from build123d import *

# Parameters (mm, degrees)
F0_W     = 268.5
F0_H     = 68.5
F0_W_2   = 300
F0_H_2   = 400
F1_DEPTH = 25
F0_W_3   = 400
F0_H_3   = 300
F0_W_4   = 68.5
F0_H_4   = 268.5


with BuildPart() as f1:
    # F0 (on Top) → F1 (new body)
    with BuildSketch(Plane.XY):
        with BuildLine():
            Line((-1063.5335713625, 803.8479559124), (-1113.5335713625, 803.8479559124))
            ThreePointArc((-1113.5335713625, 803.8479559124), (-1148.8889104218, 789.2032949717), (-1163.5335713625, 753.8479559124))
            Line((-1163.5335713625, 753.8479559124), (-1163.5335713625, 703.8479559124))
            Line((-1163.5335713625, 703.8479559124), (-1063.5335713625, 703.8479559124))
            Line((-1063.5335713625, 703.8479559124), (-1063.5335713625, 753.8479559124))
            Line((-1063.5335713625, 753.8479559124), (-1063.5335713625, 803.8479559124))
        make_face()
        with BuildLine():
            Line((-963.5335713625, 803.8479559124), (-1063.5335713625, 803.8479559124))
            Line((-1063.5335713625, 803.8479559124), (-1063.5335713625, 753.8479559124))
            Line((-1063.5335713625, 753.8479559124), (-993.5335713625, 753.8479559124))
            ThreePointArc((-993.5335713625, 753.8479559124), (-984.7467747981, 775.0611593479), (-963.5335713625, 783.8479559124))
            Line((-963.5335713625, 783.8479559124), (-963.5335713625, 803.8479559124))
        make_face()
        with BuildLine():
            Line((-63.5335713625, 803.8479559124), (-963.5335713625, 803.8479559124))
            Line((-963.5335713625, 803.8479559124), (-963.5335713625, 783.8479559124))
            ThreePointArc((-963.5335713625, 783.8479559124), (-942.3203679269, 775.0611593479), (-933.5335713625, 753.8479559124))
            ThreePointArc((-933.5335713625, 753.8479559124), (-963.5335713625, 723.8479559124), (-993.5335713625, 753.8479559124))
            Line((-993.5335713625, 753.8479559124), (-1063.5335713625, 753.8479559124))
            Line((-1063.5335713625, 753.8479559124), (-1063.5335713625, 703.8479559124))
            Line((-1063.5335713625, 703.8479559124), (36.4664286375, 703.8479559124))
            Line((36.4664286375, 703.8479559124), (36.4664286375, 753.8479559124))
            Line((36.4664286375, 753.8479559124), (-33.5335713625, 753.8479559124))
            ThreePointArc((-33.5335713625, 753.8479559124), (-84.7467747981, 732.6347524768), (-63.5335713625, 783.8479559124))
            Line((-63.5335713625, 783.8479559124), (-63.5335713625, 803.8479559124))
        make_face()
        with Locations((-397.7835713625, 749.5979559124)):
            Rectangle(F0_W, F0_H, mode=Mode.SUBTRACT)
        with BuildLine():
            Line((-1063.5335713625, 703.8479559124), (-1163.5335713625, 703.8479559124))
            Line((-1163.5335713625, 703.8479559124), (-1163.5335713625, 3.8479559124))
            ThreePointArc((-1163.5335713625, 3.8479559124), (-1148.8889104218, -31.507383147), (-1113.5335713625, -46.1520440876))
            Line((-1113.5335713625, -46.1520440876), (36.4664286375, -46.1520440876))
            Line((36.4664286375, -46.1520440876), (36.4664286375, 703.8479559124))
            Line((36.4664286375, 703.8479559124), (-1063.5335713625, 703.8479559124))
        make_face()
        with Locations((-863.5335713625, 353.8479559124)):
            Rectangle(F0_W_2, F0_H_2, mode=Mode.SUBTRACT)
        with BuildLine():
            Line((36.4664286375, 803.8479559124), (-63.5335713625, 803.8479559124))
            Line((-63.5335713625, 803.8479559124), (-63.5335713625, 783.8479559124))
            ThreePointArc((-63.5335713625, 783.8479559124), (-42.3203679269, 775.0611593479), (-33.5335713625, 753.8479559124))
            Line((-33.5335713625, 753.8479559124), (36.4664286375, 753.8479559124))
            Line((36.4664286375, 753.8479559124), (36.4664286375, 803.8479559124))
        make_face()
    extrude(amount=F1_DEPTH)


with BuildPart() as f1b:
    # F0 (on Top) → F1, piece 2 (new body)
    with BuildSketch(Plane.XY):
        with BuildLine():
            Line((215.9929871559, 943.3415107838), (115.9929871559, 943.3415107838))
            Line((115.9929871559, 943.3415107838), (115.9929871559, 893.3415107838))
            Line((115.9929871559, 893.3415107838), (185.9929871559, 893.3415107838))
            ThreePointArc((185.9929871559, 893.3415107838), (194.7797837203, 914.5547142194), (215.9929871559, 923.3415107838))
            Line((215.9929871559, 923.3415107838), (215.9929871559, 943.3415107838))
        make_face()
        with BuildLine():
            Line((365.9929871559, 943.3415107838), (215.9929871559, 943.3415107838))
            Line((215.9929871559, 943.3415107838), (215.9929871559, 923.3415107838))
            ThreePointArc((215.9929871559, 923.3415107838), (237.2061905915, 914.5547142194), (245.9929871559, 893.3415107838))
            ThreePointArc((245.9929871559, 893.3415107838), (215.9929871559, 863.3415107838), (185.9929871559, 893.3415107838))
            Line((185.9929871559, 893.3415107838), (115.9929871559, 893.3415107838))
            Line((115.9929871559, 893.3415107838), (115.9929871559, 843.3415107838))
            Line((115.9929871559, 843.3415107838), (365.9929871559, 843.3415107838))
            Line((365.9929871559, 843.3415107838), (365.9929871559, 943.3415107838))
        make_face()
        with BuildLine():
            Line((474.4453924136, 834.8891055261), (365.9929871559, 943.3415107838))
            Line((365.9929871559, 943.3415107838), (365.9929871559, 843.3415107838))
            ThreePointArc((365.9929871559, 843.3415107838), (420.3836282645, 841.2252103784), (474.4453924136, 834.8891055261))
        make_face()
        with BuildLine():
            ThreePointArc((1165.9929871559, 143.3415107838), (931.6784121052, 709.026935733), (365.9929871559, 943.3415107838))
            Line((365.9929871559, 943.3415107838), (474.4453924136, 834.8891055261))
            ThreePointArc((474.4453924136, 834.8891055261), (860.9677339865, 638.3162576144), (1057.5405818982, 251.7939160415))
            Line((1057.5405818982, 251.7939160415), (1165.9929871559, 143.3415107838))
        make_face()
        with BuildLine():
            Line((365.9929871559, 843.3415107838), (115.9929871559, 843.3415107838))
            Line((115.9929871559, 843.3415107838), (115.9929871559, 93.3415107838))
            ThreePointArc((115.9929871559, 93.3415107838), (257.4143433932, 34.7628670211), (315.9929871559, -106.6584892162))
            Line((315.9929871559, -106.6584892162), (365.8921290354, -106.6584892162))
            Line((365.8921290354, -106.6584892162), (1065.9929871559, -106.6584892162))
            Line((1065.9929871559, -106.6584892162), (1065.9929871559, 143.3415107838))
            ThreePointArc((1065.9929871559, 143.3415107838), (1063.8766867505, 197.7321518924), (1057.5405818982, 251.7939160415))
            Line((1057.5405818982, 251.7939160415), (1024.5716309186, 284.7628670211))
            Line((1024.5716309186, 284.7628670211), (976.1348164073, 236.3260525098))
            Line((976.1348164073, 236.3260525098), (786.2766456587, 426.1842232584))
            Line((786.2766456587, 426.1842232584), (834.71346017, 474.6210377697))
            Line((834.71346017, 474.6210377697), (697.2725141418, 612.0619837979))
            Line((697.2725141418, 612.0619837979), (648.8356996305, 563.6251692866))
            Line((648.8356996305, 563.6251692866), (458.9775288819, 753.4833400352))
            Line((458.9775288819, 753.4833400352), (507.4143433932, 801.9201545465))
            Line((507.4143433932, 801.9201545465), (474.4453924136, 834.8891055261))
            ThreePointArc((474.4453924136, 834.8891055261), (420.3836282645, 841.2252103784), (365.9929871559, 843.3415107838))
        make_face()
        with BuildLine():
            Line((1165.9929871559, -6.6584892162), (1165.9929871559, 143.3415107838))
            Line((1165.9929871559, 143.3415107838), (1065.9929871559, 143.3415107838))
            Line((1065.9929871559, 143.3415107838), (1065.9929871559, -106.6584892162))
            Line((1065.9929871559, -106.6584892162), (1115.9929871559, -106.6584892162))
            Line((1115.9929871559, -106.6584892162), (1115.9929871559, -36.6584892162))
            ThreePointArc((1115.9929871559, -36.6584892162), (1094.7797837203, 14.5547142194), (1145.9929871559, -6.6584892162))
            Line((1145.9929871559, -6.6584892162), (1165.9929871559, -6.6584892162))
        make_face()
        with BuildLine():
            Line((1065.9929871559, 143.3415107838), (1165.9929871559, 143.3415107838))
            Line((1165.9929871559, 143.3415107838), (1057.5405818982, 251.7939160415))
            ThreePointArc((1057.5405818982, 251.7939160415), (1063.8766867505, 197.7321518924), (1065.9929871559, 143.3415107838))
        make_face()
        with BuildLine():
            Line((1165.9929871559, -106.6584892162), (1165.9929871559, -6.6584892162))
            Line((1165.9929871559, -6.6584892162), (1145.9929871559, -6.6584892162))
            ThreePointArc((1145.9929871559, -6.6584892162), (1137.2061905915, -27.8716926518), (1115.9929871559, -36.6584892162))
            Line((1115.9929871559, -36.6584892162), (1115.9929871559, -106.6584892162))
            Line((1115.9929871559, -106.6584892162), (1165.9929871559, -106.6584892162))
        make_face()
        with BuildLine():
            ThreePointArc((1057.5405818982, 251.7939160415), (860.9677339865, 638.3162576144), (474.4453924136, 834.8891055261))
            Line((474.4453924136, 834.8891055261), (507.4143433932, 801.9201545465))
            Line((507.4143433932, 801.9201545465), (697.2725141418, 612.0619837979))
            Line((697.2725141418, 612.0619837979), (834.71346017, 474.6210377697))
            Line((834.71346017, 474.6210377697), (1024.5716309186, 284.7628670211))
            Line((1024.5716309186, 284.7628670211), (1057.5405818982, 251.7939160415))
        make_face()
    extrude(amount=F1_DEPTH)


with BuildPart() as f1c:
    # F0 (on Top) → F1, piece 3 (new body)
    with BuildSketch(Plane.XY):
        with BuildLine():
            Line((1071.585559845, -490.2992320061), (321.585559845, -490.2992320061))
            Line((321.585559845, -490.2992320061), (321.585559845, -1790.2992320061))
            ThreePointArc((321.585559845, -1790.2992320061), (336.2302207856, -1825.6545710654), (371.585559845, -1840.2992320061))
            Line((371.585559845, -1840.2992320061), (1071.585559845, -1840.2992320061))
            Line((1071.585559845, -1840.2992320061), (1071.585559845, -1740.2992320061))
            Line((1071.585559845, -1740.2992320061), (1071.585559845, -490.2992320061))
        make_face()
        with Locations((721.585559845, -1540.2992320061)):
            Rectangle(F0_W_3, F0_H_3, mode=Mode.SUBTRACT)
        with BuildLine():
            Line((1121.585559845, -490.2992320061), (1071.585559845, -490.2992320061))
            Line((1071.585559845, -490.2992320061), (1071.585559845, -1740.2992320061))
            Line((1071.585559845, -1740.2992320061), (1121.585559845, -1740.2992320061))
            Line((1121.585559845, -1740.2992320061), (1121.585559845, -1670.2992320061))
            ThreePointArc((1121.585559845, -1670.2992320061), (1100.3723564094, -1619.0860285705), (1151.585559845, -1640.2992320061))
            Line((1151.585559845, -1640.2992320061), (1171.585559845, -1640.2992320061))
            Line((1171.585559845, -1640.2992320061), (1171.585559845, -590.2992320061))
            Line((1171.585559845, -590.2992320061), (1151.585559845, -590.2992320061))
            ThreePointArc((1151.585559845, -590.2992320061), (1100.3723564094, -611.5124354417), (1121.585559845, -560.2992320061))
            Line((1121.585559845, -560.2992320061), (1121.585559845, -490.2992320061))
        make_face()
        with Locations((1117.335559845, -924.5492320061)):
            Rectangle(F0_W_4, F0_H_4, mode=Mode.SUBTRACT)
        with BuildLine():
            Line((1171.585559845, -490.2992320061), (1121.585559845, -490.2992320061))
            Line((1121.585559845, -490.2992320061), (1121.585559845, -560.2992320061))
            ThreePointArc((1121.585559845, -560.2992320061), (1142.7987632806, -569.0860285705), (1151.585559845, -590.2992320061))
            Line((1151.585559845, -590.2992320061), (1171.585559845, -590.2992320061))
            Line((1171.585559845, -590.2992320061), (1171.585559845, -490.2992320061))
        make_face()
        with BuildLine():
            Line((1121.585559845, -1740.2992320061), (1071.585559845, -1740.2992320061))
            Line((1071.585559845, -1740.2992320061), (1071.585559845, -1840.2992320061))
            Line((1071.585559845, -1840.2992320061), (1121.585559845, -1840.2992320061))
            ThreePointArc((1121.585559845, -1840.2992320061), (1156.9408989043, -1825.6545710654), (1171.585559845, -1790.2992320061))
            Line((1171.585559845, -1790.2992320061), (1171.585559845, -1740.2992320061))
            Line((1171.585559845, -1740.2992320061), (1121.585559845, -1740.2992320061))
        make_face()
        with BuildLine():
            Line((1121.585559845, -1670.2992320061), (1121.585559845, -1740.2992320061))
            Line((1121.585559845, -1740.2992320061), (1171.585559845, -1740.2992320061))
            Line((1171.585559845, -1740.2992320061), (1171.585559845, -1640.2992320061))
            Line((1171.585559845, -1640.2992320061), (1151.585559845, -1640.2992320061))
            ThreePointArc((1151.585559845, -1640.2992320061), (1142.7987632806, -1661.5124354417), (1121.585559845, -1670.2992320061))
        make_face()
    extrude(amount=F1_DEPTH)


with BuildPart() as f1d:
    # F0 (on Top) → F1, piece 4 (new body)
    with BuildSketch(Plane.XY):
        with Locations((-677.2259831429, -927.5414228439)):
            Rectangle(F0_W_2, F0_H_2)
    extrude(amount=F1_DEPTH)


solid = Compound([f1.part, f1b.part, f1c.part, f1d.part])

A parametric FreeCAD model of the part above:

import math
import FreeCAD as App
import Part
import Sketcher
Q = App.Units.Quantity


def add_polygon(sketch, points):
    """Adds a closed chain of lines whose ends are joined by coincident constraints."""
    first, n = sketch.GeometryCount, len(points)
    for a, b in zip(points, points[1:] + points[:1]):
        sketch.addGeometry(Part.LineSegment(App.Vector(*a, 0), App.Vector(*b, 0)), False)
    for i in range(n):
        sketch.addConstraint(Sketcher.Constraint("Coincident", first + i, 2, first + (i + 1) % n, 1))

doc = App.newDocument("Part")
body = doc.addObject("PartDesign::Body", "Body")

# Sketch on XY plane
sketch1 = body.newObject("Sketcher::SketchObject", "Sketch")
sketch1.AttachmentSupport = (doc.getObject("XY_Plane"), [""])
sketch1.MapMode = "FlatFace"
sketch1.addGeometry(Part.ArcOfCircle(Part.Circle(App.Vector(-1114, 754, 0), App.Vector(0, 0, 1), 50), math.radians(90), math.radians(180)), False)  # 0
sketch1.addGeometry(Part.LineSegment(App.Vector(-1164, 754, 0), App.Vector(-1164, 4, 0)), False)  # 1
sketch1.addGeometry(Part.ArcOfCircle(Part.Circle(App.Vector(-1114, 4, 0), App.Vector(0, 0, 1), 50), math.radians(180), math.radians(270)), False)  # 2
sketch1.addGeometry(Part.LineSegment(App.Vector(-1114, -46, 0), App.Vector(36, -46, 0)), False)  # 3
sketch1.addGeometry(Part.LineSegment(App.Vector(36, -46, 0), App.Vector(36, 804, 0)), False)  # 4
sketch1.addGeometry(Part.LineSegment(App.Vector(36, 804, 0), App.Vector(-1114, 804, 0)), False)  # 5
sketch1.addGeometry(Part.ArcOfCircle(Part.Circle(App.Vector(-64, 754, 0), App.Vector(0, 0, 1), 30), math.radians(90), math.radians(360)), False)  # 6
sketch1.addGeometry(Part.ArcOfCircle(Part.Circle(App.Vector(-64, 754, 0), App.Vector(0, 0, 1), 30), math.radians(0), math.radians(90)), False)  # 7
add_polygon(sketch1, [(-714, 154), (-1014, 154), (-1014, 554), (-714, 554)])  # lines 8-11
sketch1.addGeometry(Part.ArcOfCircle(Part.Circle(App.Vector(-964, 754, 0), App.Vector(0, 0, 1), 30), math.radians(90), math.radians(180)), False)  # 12
sketch1.addGeometry(Part.ArcOfCircle(Part.Circle(App.Vector(-964, 754, 0), App.Vector(0, 0, 1), 30), math.radians(0), math.radians(90)), False)  # 13
sketch1.addGeometry(Part.ArcOfCircle(Part.Circle(App.Vector(-964, 754, 0), App.Vector(0, 0, 1), 30), math.radians(180), math.radians(360)), False)  # 14
add_polygon(sketch1, [(-264, 715), (-532, 715), (-532, 784), (-264, 784)])  # lines 15-18
sketch1.addConstraint(Sketcher.Constraint("Tangent", 0, 2, 1, 1))
sketch1.addConstraint(Sketcher.Constraint("Tangent", 1, 2, 2, 1))
sketch1.addConstraint(Sketcher.Constraint("Tangent", 2, 2, 3, 1))
sketch1.addConstraint(Sketcher.Constraint("Coincident", 3, 2, 4, 1))
sketch1.addConstraint(Sketcher.Constraint("Coincident", 4, 2, 5, 1))
sketch1.addConstraint(Sketcher.Constraint("Tangent", 5, 2, 0, 1))
sketch1.addConstraint(Sketcher.Constraint("Tangent", 6, 1, 7, 2))
sketch1.addConstraint(Sketcher.Constraint("Coincident", 7, 1, 6, 2))
sketch1.addConstraint(Sketcher.Constraint("Tangent", 12, 1, 13, 2))
sketch1.addConstraint(Sketcher.Constraint("Tangent", 13, 1, 14, 2))
sketch1.addConstraint(Sketcher.Constraint("Tangent", 14, 1, 12, 2))
sketch1.addConstraint(Sketcher.Constraint("Vertical", 1))
sketch1.addConstraint(Sketcher.Constraint("Horizontal", 3))
sketch1.addConstraint(Sketcher.Constraint("Vertical", 4))
sketch1.addConstraint(Sketcher.Constraint("Horizontal", 5))
sketch1.addConstraint(Sketcher.Constraint("Horizontal", 8))
sketch1.addConstraint(Sketcher.Constraint("Vertical", 9))
sketch1.addConstraint(Sketcher.Constraint("Horizontal", 10))
sketch1.addConstraint(Sketcher.Constraint("Vertical", 11))
sketch1.addConstraint(Sketcher.Constraint("Horizontal", 15))
sketch1.addConstraint(Sketcher.Constraint("Vertical", 16))
sketch1.addConstraint(Sketcher.Constraint("Horizontal", 17))
sketch1.addConstraint(Sketcher.Constraint("Vertical", 18))
sketch1.addConstraint(Sketcher.Constraint("Equal", 0, 2))
sketch1.addConstraint(Sketcher.Constraint("Equal", 7, 12))
sketch1.addConstraint(Sketcher.Constraint("Horizontal", 0, 3, 6, 3))
sketch1.addConstraint(Sketcher.Constraint("Horizontal", 7, 3, 12, 3))
sketch1.addConstraint(Sketcher.Constraint("Horizontal", 0, 2, 7, 1))
sketch1.addConstraint(Sketcher.Constraint("Horizontal", 7, 1, 13, 1))
sketch1.addConstraint(Sketcher.Constraint("Horizontal", 13, 1, 14, 1))
sketch1.addConstraint(Sketcher.Constraint("Horizontal", 12, 1, 16, 2))
sketch1.addConstraint(Sketcher.Constraint("Vertical", 7, 3, 6, 1))
sketch1.addConstraint(Sketcher.Constraint("Vertical", 14, 3, 12, 1))
sketch1.addConstraint(Sketcher.Constraint("Radius", 0, Q("50 mm")))
sketch1.addConstraint(Sketcher.Constraint("Radius", 6, Q("30 mm")))
sketch1.addConstraint(Sketcher.Constraint("DistanceX", 3, 1, 3, 2, Q("1150 mm")))
sketch1.addConstraint(Sketcher.Constraint("DistanceX", 8, 2, 8, 1, Q("300 mm")))
sketch1.addConstraint(Sketcher.Constraint("DistanceY", 1, 2, 1, 1, Q("750 mm")))
sketch1.addConstraint(Sketcher.Constraint("DistanceY", 9, 1, 9, 2, Q("400 mm")))
sketch1.addConstraint(Sketcher.Constraint("DistanceX", 15, 2, 15, 1, Q("268.5 mm")))
sketch1.addConstraint(Sketcher.Constraint("DistanceY", 16, 1, 16, 2, Q("68.5 mm")))
sketch1.addConstraint(Sketcher.Constraint("DistanceX", 0, 3, 6, 3, Q("1050 mm")))
sketch1.addConstraint(Sketcher.Constraint("DistanceX", 0, 3, 12, 3, Q("150 mm")))
sketch1.addConstraint(Sketcher.Constraint("DistanceX", 2, 3, 8, 2, Q("100 mm")))
sketch1.addConstraint(Sketcher.Constraint("DistanceY", 2, 3, 8, 2, Q("150 mm")))
sketch1.addConstraint(Sketcher.Constraint("DistanceX", 17, 2, 6, 1, Q("200 mm")))
sketch1.addConstraint(Sketcher.Constraint("DistanceX", 0, 3, -1, 1, Q("1113.533571 mm")))
sketch1.addConstraint(Sketcher.Constraint("DistanceY", -1, 1, 0, 3, Q("753.847956 mm")))
pad1 = body.newObject("PartDesign::Pad", "Pad")
pad1.Profile = sketch1
pad1.Length = 25
body2 = doc.addObject("PartDesign::Body", "Body001")

# Sketch on XY plane
sketch2 = body2.newObject("Sketcher::SketchObject", "Sketch001")
sketch2.AttachmentSupport = (doc.getObject("XY_Plane001"), [""])
sketch2.MapMode = "FlatFace"
sketch2.addGeometry(Part.ArcOfCircle(Part.Circle(App.Vector(366, 143, 0), App.Vector(0, 0, 1), 800), math.radians(0), math.radians(90)), False)  # 0
sketch2.addGeometry(Part.LineSegment(App.Vector(366, 943, 0), App.Vector(116, 943, 0)), False)  # 1
sketch2.addGeometry(Part.LineSegment(App.Vector(116, 943, 0), App.Vector(116, 93, 0)), False)  # 2
sketch2.addGeometry(Part.ArcOfCircle(Part.Circle(App.Vector(116, -107, 0), App.Vector(0, 0, 1), 200), math.radians(0), math.radians(90)), False)  # 3
sketch2.addGeometry(Part.LineSegment(App.Vector(316, -107, 0), App.Vector(1166, -107, 0)), False)  # 4
sketch2.addGeometry(Part.LineSegment(App.Vector(1166, -107, 0), App.Vector(1166, 143, 0)), False)  # 5
sketch2.addGeometry(Part.Circle(App.Vector(1116, -7, 0), App.Vector(0, 0, 1), 30), False)  # 6
sketch2.addGeometry(Part.Circle(App.Vector(216, 893, 0), App.Vector(0, 0, 1), 30), False)  # 7
add_polygon(sketch2, [(1025, 285), (976, 236), (786, 426), (835, 475)])  # lines 8-11
add_polygon(sketch2, [(697, 612), (649, 564), (459, 753), (507, 802)])  # lines 12-15
sketch2.addConstraint(Sketcher.Constraint("Tangent", 0, 2, 1, 1))
sketch2.addConstraint(Sketcher.Constraint("Coincident", 1, 2, 2, 1))
sketch2.addConstraint(Sketcher.Constraint("Coincident", 2, 2, 3, 2))
sketch2.addConstraint(Sketcher.Constraint("Coincident", 3, 1, 4, 1))
sketch2.addConstraint(Sketcher.Constraint("Coincident", 4, 2, 5, 1))
sketch2.addConstraint(Sketcher.Constraint("Tangent", 5, 2, 0, 1))
sketch2.addConstraint(Sketcher.Constraint("Horizontal", 1))
sketch2.addConstraint(Sketcher.Constraint("Vertical", 2))
sketch2.addConstraint(Sketcher.Constraint("Horizontal", 4))
sketch2.addConstraint(Sketcher.Constraint("Vertical", 5))
sketch2.addConstraint(Sketcher.Constraint("Equal", 6, 7))
sketch2.addConstraint(Sketcher.Constraint("Perpendicular", 8, 9))
sketch2.addConstraint(Sketcher.Constraint("Perpendicular", 9, 10))
sketch2.addConstraint(Sketcher.Constraint("Perpendicular", 10, 11))
sketch2.addConstraint(Sketcher.Constraint("Perpendicular", 11, 12))
sketch2.addConstraint(Sketcher.Constraint("Perpendicular", 12, 13))
sketch2.addConstraint(Sketcher.Constraint("Perpendicular", 13, 14))
sketch2.addConstraint(Sketcher.Constraint("Perpendicular", 14, 15))
sketch2.addConstraint(Sketcher.Constraint("Vertical", 3, 3, 1, 2))
sketch2.addConstraint(Sketcher.Constraint("Equal", 4, 2))
sketch2.addConstraint(Sketcher.Constraint("Equal", 1, 5))
sketch2.addConstraint(Sketcher.Constraint("Equal", 10, 12))
sketch2.addConstraint(Sketcher.Constraint("Equal", 11, 13))
sketch2.addConstraint(Sketcher.Constraint("Diameter", 6, Q("60 mm")))
sketch2.addConstraint(Sketcher.Constraint("Radius", 0, Q("800 mm")))
sketch2.addConstraint(Sketcher.Constraint("Radius", 3, Q("200 mm")))
sketch2.addConstraint(Sketcher.Constraint("DistanceX", 1, 2, 1, 1, Q("250 mm")))
sketch2.addConstraint(Sketcher.Constraint("Angle", 8, Q("-135 deg")))
sketch2.addConstraint(Sketcher.Constraint("DistanceX", 0, 3, 6, 3, Q("750 mm")))
sketch2.addConstraint(Sketcher.Constraint("DistanceY", 6, 3, 0, 3, Q("150 mm")))
sketch2.addConstraint(Sketcher.Constraint("DistanceX", 7, 3, 0, 3, Q("150 mm")))
sketch2.addConstraint(Sketcher.Constraint("DistanceY", 0, 3, 7, 3, Q("750 mm")))
sketch2.addConstraint(Sketcher.Constraint("Distance", 8, Q("68.5 mm")))
sketch2.addConstraint(Sketcher.Constraint("Distance", 9, Q("268.5 mm")))
sketch2.addConstraint(Sketcher.Constraint("DistanceX", -1, 1, 12, 2, Q("648.8357 mm")))
sketch2.addConstraint(Sketcher.Constraint("DistanceY", -1, 1, 0, 3, Q("143.341511 mm")))
sketch2.addConstraint(Sketcher.Constraint("DistanceX", -1, 1, 10, 2, Q("834.71346 mm")))
sketch2.addConstraint(Sketcher.Constraint("DistanceY", -1, 1, 12, 2, Q("563.625169 mm")))
sketch2.addConstraint(Sketcher.Constraint("DistanceX", 8, 2, 5, 2, Q("189.858171 mm")))
sketch2.addConstraint(Sketcher.Constraint("DistanceY", 5, 2, 8, 2, Q("92.984542 mm")))
pad2 = body2.newObject("PartDesign::Pad", "Pad001")
pad2.Profile = sketch2
pad2.Length = 25
body3 = doc.addObject("PartDesign::Body", "Body002")

# Sketch on XY plane
sketch3 = body3.newObject("Sketcher::SketchObject", "Sketch002")
sketch3.AttachmentSupport = (doc.getObject("XY_Plane002"), [""])
sketch3.MapMode = "FlatFace"
sketch3.addGeometry(Part.LineSegment(App.Vector(322, -490, 0), App.Vector(322, -1790, 0)), False)  # 0
sketch3.addGeometry(Part.ArcOfCircle(Part.Circle(App.Vector(372, -1790, 0), App.Vector(0, 0, 1), 50), math.radians(180), math.radians(270)), False)  # 1
sketch3.addGeometry(Part.LineSegment(App.Vector(372, -1840, 0), App.Vector(1122, -1840, 0)), False)  # 2
sketch3.addGeometry(Part.ArcOfCircle(Part.Circle(App.Vector(1122, -1790, 0), App.Vector(0, 0, 1), 50), math.radians(-90), math.radians(0)), False)  # 3
sketch3.addGeometry(Part.LineSegment(App.Vector(1172, -1790, 0), App.Vector(1172, -490, 0)), False)  # 4
sketch3.addGeometry(Part.LineSegment(App.Vector(1172, -490, 0), App.Vector(322, -490, 0)), False)  # 5
sketch3.addGeometry(Part.Circle(App.Vector(1122, -1640, 0), App.Vector(0, 0, 1), 30), False)  # 6
sketch3.addGeometry(Part.Circle(App.Vector(1122, -590, 0), App.Vector(0, 0, 1), 30), False)  # 7
add_polygon(sketch3, [(922, -1690), (522, -1690), (522, -1390), (922, -1390)])  # lines 8-11
add_polygon(sketch3, [(1152, -1059), (1083, -1059), (1083, -790), (1152, -790)])  # lines 12-15
sketch3.addConstraint(Sketcher.Constraint("Tangent", 0, 2, 1, 1))
sketch3.addConstraint(Sketcher.Constraint("Tangent", 1, 2, 2, 1))
sketch3.addConstraint(Sketcher.Constraint("Tangent", 2, 2, 3, 1))
sketch3.addConstraint(Sketcher.Constraint("Tangent", 3, 2, 4, 1))
sketch3.addConstraint(Sketcher.Constraint("Coincident", 4, 2, 5, 1))
sketch3.addConstraint(Sketcher.Constraint("Coincident", 5, 2, 0, 1))
sketch3.addConstraint(Sketcher.Constraint("Vertical", 0))
sketch3.addConstraint(Sketcher.Constraint("Horizontal", 2))
sketch3.addConstraint(Sketcher.Constraint("Vertical", 4))
sketch3.addConstraint(Sketcher.Constraint("Horizontal", 5))
sketch3.addConstraint(Sketcher.Constraint("Horizontal", 8))
sketch3.addConstraint(Sketcher.Constraint("Vertical", 9))
sketch3.addConstraint(Sketcher.Constraint("Horizontal", 10))
sketch3.addConstraint(Sketcher.Constraint("Vertical", 11))
sketch3.addConstraint(Sketcher.Constraint("Horizontal", 12))
sketch3.addConstraint(Sketcher.Constraint("Vertical", 13))
sketch3.addConstraint(Sketcher.Constraint("Horizontal", 14))
sketch3.addConstraint(Sketcher.Constraint("Vertical", 15))
sketch3.addConstraint(Sketcher.Constraint("Equal", 1, 3))
sketch3.addConstraint(Sketcher.Constraint("Equal", 6, 7))
sketch3.addConstraint(Sketcher.Constraint("Vertical", 3, 3, 6, 3))
sketch3.addConstraint(Sketcher.Constraint("Vertical", 6, 3, 7, 3))
sketch3.addConstraint(Sketcher.Constraint("Diameter", 6, Q("60 mm")))
sketch3.addConstraint(Sketcher.Constraint("Radius", 1, Q("50 mm")))
sketch3.addConstraint(Sketcher.Constraint("DistanceX", 2, 1, 2, 2, Q("750 mm")))
sketch3.addConstraint(Sketcher.Constraint("DistanceX", 8, 2, 8, 1, Q("400 mm")))
sketch3.addConstraint(Sketcher.Constraint("DistanceY", 0, 2, 0, 1, Q("1300 mm")))
sketch3.addConstraint(Sketcher.Constraint("DistanceY", 9, 1, 9, 2, Q("300 mm")))
sketch3.addConstraint(Sketcher.Constraint("DistanceX", 12, 2, 12, 1, Q("68.5 mm")))
sketch3.addConstraint(Sketcher.Constraint("DistanceY", 13, 1, 13, 2, Q("268.5 mm")))
sketch3.addConstraint(Sketcher.Constraint("DistanceY", 3, 3, 6, 3, Q("150 mm")))
sketch3.addConstraint(Sketcher.Constraint("DistanceY", 6, 3, 7, 3, Q("1050 mm")))
sketch3.addConstraint(Sketcher.Constraint("DistanceX", 1, 3, 8, 2, Q("150 mm")))
sketch3.addConstraint(Sketcher.Constraint("DistanceY", 1, 3, 8, 2, Q("100 mm")))
sketch3.addConstraint(Sketcher.Constraint("DistanceY", 13, 2, 7, 3, Q("200 mm")))
sketch3.addConstraint(Sketcher.Constraint("DistanceX", 7, 3, 14, 2, Q("30 mm")))
sketch3.addConstraint(Sketcher.Constraint("DistanceX", -1, 1, 1, 3, Q("371.58556 mm")))
sketch3.addConstraint(Sketcher.Constraint("DistanceY", 1, 3, -1, 1, Q("1790.299232 mm")))
pad3 = body3.newObject("PartDesign::Pad", "Pad002")
pad3.Profile = sketch3
pad3.Length = 25
body4 = doc.addObject("PartDesign::Body", "Body003")

# Sketch on XY plane
sketch4 = body4.newObject("Sketcher::SketchObject", "Sketch003")
sketch4.AttachmentSupport = (doc.getObject("XY_Plane003"), [""])
sketch4.MapMode = "FlatFace"
add_polygon(sketch4, [(-827, -728), (-827, -1128), (-527, -1128), (-527, -728)])  # lines 0-3
sketch4.addConstraint(Sketcher.Constraint("Vertical", 0))
sketch4.addConstraint(Sketcher.Constraint("Horizontal", 1))
sketch4.addConstraint(Sketcher.Constraint("Vertical", 2))
sketch4.addConstraint(Sketcher.Constraint("Horizontal", 3))
sketch4.addConstraint(Sketcher.Constraint("DistanceX", 1, 1, 1, 2, Q("300 mm")))
sketch4.addConstraint(Sketcher.Constraint("DistanceY", 0, 2, 0, 1, Q("400 mm")))
sketch4.addConstraint(Sketcher.Constraint("DistanceX", 0, 2, -1, 1, Q("827.225983 mm")))
sketch4.addConstraint(Sketcher.Constraint("DistanceY", 0, 2, -1, 1, Q("1127.541423 mm")))
pad4 = body4.newObject("PartDesign::Pad", "Pad003")
pad4.Profile = sketch4
pad4.Length = 25

doc.recompute()
